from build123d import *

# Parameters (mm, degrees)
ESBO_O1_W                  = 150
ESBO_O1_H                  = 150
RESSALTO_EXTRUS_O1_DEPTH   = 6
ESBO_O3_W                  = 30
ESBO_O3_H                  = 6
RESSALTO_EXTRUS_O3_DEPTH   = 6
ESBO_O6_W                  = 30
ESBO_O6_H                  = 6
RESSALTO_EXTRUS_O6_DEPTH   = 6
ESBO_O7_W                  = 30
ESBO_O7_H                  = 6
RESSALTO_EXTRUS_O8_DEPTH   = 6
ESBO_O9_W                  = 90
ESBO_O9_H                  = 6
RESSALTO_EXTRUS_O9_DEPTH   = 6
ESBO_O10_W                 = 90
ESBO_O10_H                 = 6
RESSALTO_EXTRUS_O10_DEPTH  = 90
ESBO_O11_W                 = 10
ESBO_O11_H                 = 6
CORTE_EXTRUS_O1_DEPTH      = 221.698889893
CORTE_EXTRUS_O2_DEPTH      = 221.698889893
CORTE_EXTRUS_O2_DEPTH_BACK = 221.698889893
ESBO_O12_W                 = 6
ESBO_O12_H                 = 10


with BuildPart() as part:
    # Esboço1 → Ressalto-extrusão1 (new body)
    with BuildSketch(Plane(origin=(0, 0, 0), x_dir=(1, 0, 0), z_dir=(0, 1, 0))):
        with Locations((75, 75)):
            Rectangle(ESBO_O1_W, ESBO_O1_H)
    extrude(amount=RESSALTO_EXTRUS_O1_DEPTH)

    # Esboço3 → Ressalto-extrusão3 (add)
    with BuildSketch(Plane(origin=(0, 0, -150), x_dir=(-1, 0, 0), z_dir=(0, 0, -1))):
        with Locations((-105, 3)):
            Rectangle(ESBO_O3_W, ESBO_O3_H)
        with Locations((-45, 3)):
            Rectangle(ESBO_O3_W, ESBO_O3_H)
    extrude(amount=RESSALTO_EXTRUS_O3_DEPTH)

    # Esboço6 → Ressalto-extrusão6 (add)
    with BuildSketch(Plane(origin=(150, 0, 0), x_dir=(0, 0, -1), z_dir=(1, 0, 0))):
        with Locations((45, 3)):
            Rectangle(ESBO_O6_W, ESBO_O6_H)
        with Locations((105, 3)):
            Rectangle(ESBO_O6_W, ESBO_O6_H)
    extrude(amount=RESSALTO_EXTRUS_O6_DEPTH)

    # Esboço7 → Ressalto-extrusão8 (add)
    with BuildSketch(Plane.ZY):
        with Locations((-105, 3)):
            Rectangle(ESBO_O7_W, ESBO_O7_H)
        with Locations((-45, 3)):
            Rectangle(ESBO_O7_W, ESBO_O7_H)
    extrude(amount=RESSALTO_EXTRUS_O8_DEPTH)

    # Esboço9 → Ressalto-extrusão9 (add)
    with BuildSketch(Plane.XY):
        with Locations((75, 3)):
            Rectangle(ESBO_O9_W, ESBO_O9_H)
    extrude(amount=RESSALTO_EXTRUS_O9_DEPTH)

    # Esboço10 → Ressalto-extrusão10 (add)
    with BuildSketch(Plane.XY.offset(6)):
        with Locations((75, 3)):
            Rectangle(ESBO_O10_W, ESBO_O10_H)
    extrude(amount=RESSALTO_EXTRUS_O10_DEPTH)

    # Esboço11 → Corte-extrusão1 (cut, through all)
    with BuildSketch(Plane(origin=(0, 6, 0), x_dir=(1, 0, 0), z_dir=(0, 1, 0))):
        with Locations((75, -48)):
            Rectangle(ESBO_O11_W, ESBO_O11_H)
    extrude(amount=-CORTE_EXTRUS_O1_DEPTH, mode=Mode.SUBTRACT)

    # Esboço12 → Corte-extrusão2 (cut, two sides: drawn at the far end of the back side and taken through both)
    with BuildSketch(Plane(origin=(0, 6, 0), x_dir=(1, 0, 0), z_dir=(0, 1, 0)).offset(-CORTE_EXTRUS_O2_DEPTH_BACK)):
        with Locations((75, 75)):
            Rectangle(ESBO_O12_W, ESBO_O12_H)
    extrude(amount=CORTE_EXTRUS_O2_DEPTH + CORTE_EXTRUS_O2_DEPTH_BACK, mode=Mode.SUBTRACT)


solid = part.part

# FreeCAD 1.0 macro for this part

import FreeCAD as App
import Part
import Sketcher
from FreeCAD import Vector

doc = App.newDocument("Part")
body = doc.addObject("PartDesign::Body", "Body")

sketch1 = doc.addObject("Sketcher::SketchObject", "Sketch")
body.addObject(sketch1)
sketch1.AttachmentSupport = (doc.XZ_Plane, [""])
sketch1.MapMode = "FlatFace"
sketch1.addGeometry([
    Part.LineSegment(Vector(0, -150, 0), Vector(0, 0, 0)),
    Part.LineSegment(Vector(0, 0, 0), Vector(150, 0, 0)),
    Part.LineSegment(Vector(150, 0, 0), Vector(150, -150, 0)),
    Part.LineSegment(Vector(150, -150, 0), Vector(0, -150, 0)),
], False)
sketch1.addConstraint([
    Sketcher.Constraint("Coincident", 0, 2, 1, 1),
    Sketcher.Constraint("Coincident", 1, 2, 2, 1),
    Sketcher.Constraint("Coincident", 2, 2, 3, 1),
    Sketcher.Constraint("Coincident", 3, 2, 0, 1),
    Sketcher.Constraint("Vertical", 0),
    Sketcher.Constraint("Horizontal", 1),
    Sketcher.Constraint("Vertical", 2),
    Sketcher.Constraint("Horizontal", 3),
    Sketcher.Constraint("Coincident", 0, 2, -1, 1),
    Sketcher.Constraint("Equal", 3, 0),
    Sketcher.Constraint("DistanceX", 1, 1, 1, 2, 150.0),
])
pad1 = doc.addObject("PartDesign::Pad", "Pad")
body.addObject(pad1)
pad1.Profile = sketch1
pad1.Length = 6
pad1.Reversed = True

sketch2 = doc.addObject("Sketcher::SketchObject", "Sketch001")
body.addObject(sketch2)
sketch2.AttachmentSupport = (doc.XY_Plane, [""])
sketch2.MapMode = "FlatFace"
sketch2.AttachmentOffset = App.Placement(Vector(0, 0, -150), App.Rotation())
sketch2.addGeometry([
    Part.LineSegment(Vector(120, 6, 0), Vector(120, 0, 0)),
    Part.LineSegment(Vector(120, 0, 0), Vector(90, 0, 0)),
    Part.LineSegment(Vector(90, 0, 0), Vector(90, 6, 0)),
    Part.LineSegment(Vector(90, 6, 0), Vector(120, 6, 0)),
    Part.LineSegment(Vector(60, 6, 0), Vector(60, 0, 0)),
    Part.LineSegment(Vector(60, 0, 0), Vector(30, 0, 0)),
    Part.LineSegment(Vector(30, 0, 0), Vector(30, 6, 0)),
    Part.LineSegment(Vector(30, 6, 0), Vector(60, 6, 0)),
], False)
sketch2.addConstraint([
    Sketcher.Constraint("Coincident", 0, 2, 1, 1),
    Sketcher.Constraint("Coincident", 1, 2, 2, 1),
    Sketcher.Constraint("Coincident", 2, 2, 3, 1),
    Sketcher.Constraint("Coincident", 3, 2, 0, 1),
    Sketcher.Constraint("Coincident", 4, 2, 5, 1),
    Sketcher.Constraint("Coincident", 5, 2, 6, 1),
    Sketcher.Constraint("Coincident", 6, 2, 7, 1),
    Sketcher.Constraint("Coincident", 7, 2, 4, 1),
    Sketcher.Constraint("Vertical", 0),
    Sketcher.Constraint("Horizontal", 1),
    Sketcher.Constraint("Vertical", 2),
    Sketcher.Constraint("Horizontal", 3),
    Sketcher.Constraint("Vertical", 4),
    Sketcher.Constraint("Horizontal", 5),
    Sketcher.Constraint("Vertical", 6),
    Sketcher.Constraint("Horizontal", 7),
    Sketcher.Constraint("PointOnObject", 0, 2, -1),
    Sketcher.Constraint("PointOnObject", 4, 2, -1),
    Sketcher.Constraint("Horizontal", 3, 2, 6, 2),
    Sketcher.Constraint("Equal", 3, 5),
    Sketcher.Constraint("DistanceX", 1, 2, 1, 1, 30.0),
    Sketcher.Constraint("DistanceY", 0, 2, 0, 1, 6.0),
    Sketcher.Constraint("DistanceX", -1, 1, 0, 2, 120.0),
    Sketcher.Constraint("DistanceX", -1, 1, 4, 2, 60.0),
])
pad2 = doc.addObject("PartDesign::Pad", "Pad001")
body.addObject(pad2)
pad2.Profile = sketch2
pad2.Length = 6
pad2.Reversed = True

sketch3 = doc.addObject("Sketcher::SketchObject", "Sketch002")
body.addObject(sketch3)
sketch3.AttachmentSupport = (doc.YZ_Plane, [""])
sketch3.MapMode = "FlatFace"
sketch3.AttachmentOffset = App.Placement(Vector(0, 0, 150), App.Rotation())
sketch3.addGeometry([
    Part.LineSegment(Vector(6, -30, 0), Vector(0, -30, 0)),
    Part.LineSegment(Vector(0, -30, 0), Vector(0, -60, 0)),
    Part.LineSegment(Vector(0, -60, 0), Vector(6, -60, 0)),
    Part.LineSegment(Vector(6, -60, 0), Vector(6, -30, 0)),
    Part.LineSegment(Vector(6, -90, 0), Vector(0, -90, 0)),
    Part.LineSegment(Vector(0, -90, 0), Vector(0, -120, 0)),
    Part.LineSegment(Vector(0, -120, 0), Vector(6, -120, 0)),
    Part.LineSegment(Vector(6, -120, 0), Vector(6, -90, 0)),
], False)
sketch3.addConstraint([
    Sketcher.Constraint("Coincident", 0, 2, 1, 1),
    Sketcher.Constraint("Coincident", 1, 2, 2, 1),
    Sketcher.Constraint("Coincident", 2, 2, 3, 1),
    Sketcher.Constraint("Coincident", 3, 2, 0, 1),
    Sketcher.Constraint("Coincident", 4, 2, 5, 1),
    Sketcher.Constraint("Coincident", 5, 2, 6, 1),
    Sketcher.Constraint("Coincident", 6, 2, 7, 1),
    Sketcher.Constraint("Coincident", 7, 2, 4, 1),
    Sketcher.Constraint("Horizontal", 0),
    Sketcher.Constraint("Vertical", 1),
    Sketcher.Constraint("Horizontal", 2),
    Sketcher.Constraint("Vertical", 3),
    Sketcher.Constraint("Horizontal", 4),
    Sketcher.Constraint("Vertical", 5),
    Sketcher.Constraint("Horizontal", 6),
    Sketcher.Constraint("Vertical", 7),
    Sketcher.Constraint("PointOnObject", 0, 2, -2),
    Sketcher.Constraint("PointOnObject", 4, 2, -2),
    Sketcher.Constraint("Vertical", 3, 2, 6, 2),
    Sketcher.Constraint("Equal", 3, 5),
    Sketcher.Constraint("DistanceX", 0, 2, 0, 1, 6.0),
    Sketcher.Constraint("DistanceY", 1, 2, 1, 1, 30.0),
    Sketcher.Constraint("DistanceY", 0, 2, -1, 1, 30.0),
    Sketcher.Constraint("DistanceY", 4, 2, -1, 1, 90.0),
])
pad3 = doc.addObject("PartDesign::Pad", "Pad002")
body.addObject(pad3)
pad3.Profile = sketch3
pad3.Length = 6

sketch4 = doc.addObject("Sketcher::SketchObject", "Sketch003")
body.addObject(sketch4)
sketch4.AttachmentSupport = (doc.YZ_Plane, [""])
sketch4.MapMode = "FlatFace"
sketch4.addGeometry([
    Part.LineSegment(Vector(6, -120, 0), Vector(0, -120, 0)),
    Part.LineSegment(Vector(0, -120, 0), Vector(0, -90, 0)),
    Part.LineSegment(Vector(0, -90, 0), Vector(6, -90, 0)),
    Part.LineSegment(Vector(6, -90, 0), Vector(6, -120, 0)),
    Part.LineSegment(Vector(6, -60, 0), Vector(0, -60, 0)),
    Part.LineSegment(Vector(0, -60, 0), Vector(0, -30, 0)),
    Part.LineSegment(Vector(0, -30, 0), Vector(6, -30, 0)),
    Part.LineSegment(Vector(6, -30, 0), Vector(6, -60, 0)),
], False)
sketch4.addConstraint([
    Sketcher.Constraint("Coincident", 0, 2, 1, 1),
    Sketcher.Constraint("Coincident", 1, 2, 2, 1),
    Sketcher.Constraint("Coincident", 2, 2, 3, 1),
    Sketcher.Constraint("Coincident", 3, 2, 0, 1),
    Sketcher.Constraint("Coincident", 4, 2, 5, 1),
    Sketcher.Constraint("Coincident", 5, 2, 6, 1),
    Sketcher.Constraint("Coincident", 6, 2, 7, 1),
    Sketcher.Constraint("Coincident", 7, 2, 4, 1),
    Sketcher.Constraint("Horizontal", 0),
    Sketcher.Constraint("Vertical", 1),
    Sketcher.Constraint("Horizontal", 2),
    Sketcher.Constraint("Vertical", 3),
    Sketcher.Constraint("Horizontal", 4),
    Sketcher.Constraint("Vertical", 5),
    Sketcher.Constraint("Horizontal", 6),
    Sketcher.Constraint("Vertical", 7),
    Sketcher.Constraint("PointOnObject", 0, 2, -2),
    Sketcher.Constraint("PointOnObject", 4, 2, -2),
    Sketcher.Constraint("Vertical", 3, 2, 6, 2),
    Sketcher.Constraint("Equal", 3, 5),
    Sketcher.Constraint("DistanceX", 0, 2, 0, 1, 6.0),
    Sketcher.Constraint("DistanceY", 1, 1, 1, 2, 30.0),
    Sketcher.Constraint("DistanceY", 0, 2, -1, 1, 120.0),
    Sketcher.Constraint("DistanceY", 4, 2, -1, 1, 60.0),
])
pad4 = doc.addObject("PartDesign::Pad", "Pad003")
body.addObject(pad4)
pad4.Profile = sketch4
pad4.Length = 6
pad4.Reversed = True

sketch5 = doc.addObject("Sketcher::SketchObject", "Sketch004")
body.addObject(sketch5)
sketch5.AttachmentSupport = (doc.XY_Plane, [""])
sketch5.MapMode = "FlatFace"
sketch5.addGeometry([
    Part.LineSegment(Vector(30, 6, 0), Vector(30, 0, 0)),
    Part.LineSegment(Vector(30, 0, 0), Vector(120, 0, 0)),
    Part.LineSegment(Vector(120, 0, 0), Vector(120, 6, 0)),
    Part.LineSegment(Vector(120, 6, 0), Vector(30, 6, 0)),
], False)
sketch5.addConstraint([
    Sketcher.Constraint("Coincident", 0, 2, 1, 1),
    Sketcher.Constraint("Coincident", 1, 2, 2, 1),
    Sketcher.Constraint("Coincident", 2, 2, 3, 1),
    Sketcher.Constraint("Coincident", 3, 2, 0, 1),
    Sketcher.Constraint("Vertical", 0),
    Sketcher.Constraint("Horizontal", 1),
    Sketcher.Constraint("Vertical", 2),
    Sketcher.Constraint("Horizontal", 3),
    Sketcher.Constraint("PointOnObject", 0, 2, -1),
    Sketcher.Constraint("DistanceX", 1, 1, 1, 2, 90.0),
    Sketcher.Constraint("DistanceY", 0, 2, 0, 1, 6.0),
    Sketcher.Constraint("DistanceX", -1, 1, 0, 2, 30.0),
])
pad5 = doc.addObject("PartDesign::Pad", "Pad004")
body.addObject(pad5)
pad5.Profile = sketch5
pad5.Length = 6

sketch6 = doc.addObject("Sketcher::SketchObject", "Sketch005")
body.addObject(sketch6)
sketch6.AttachmentSupport = (doc.XY_Plane, [""])
sketch6.MapMode = "FlatFace"
sketch6.AttachmentOffset = App.Placement(Vector(0, 0, 6), App.Rotation())
sketch6.addGeometry([
    Part.LineSegment(Vector(30, 6, 0), Vector(30, 0, 0)),
    Part.LineSegment(Vector(30, 0, 0), Vector(120, 0, 0)),
    Part.LineSegment(Vector(120, 0, 0), Vector(120, 6, 0)),
    Part.LineSegment(Vector(120, 6, 0), Vector(30, 6, 0)),
], False)
sketch6.addConstraint([
    Sketcher.Constraint("Coincident", 0, 2, 1, 1),
    Sketcher.Constraint("Coincident", 1, 2, 2, 1),
    Sketcher.Constraint("Coincident", 2, 2, 3, 1),
    Sketcher.Constraint("Coincident", 3, 2, 0, 1),
    Sketcher.Constraint("Vertical", 0),
    Sketcher.Constraint("Horizontal", 1),
    Sketcher.Constraint("Vertical", 2),
    Sketcher.Constraint("Horizontal", 3),
    Sketcher.Constraint("PointOnObject", 0, 2, -1),
    Sketcher.Constraint("DistanceX", 1, 1, 1, 2, 90.0),
    Sketcher.Constraint("DistanceY", 0, 2, 0, 1, 6.0),
    Sketcher.Constraint("DistanceX", -1, 1, 0, 2, 30.0),
])
pad6 = doc.addObject("PartDesign::Pad", "Pad005")
body.addObject(pad6)
pad6.Profile = sketch6
pad6.Length = 90

sketch7 = doc.addObject("Sketcher::SketchObject", "Sketch006")
body.addObject(sketch7)
sketch7.AttachmentSupport = (doc.XZ_Plane, [""])
sketch7.MapMode = "FlatFace"
sketch7.AttachmentOffset = App.Placement(Vector(0, 0, -6), App.Rotation())
sketch7.addGeometry([
    Part.LineSegment(Vector(70, 45, 0), Vector(70, 51, 0)),
    Part.LineSegment(Vector(70, 51, 0), Vector(80, 51, 0)),
    Part.LineSegment(Vector(80, 51, 0), Vector(80, 45, 0)),
    Part.LineSegment(Vector(80, 45, 0), Vector(70, 45, 0)),
], False)
sketch7.addConstraint([
    Sketcher.Constraint("Coincident", 0, 2, 1, 1),
    Sketcher.Constraint("Coincident", 1, 2, 2, 1),
    Sketcher.Constraint("Coincident", 2, 2, 3, 1),
    Sketcher.Constraint("Coincident", 3, 2, 0, 1),
    Sketcher.Constraint("Vertical", 0),
    Sketcher.Constraint("Horizontal", 1),
    Sketcher.Constraint("Vertical", 2),
    Sketcher.Constraint("Horizontal", 3),
    Sketcher.Constraint("DistanceX", 1, 1, 1, 2, 10.0),
    Sketcher.Constraint("DistanceY", 0, 1, 0, 2, 6.0),
    Sketcher.Constraint("DistanceX", -1, 1, 0, 2, 70.0),
    Sketcher.Constraint("DistanceY", -1, 1, 0, 2, 51.0),
])
pocket1 = doc.addObject("PartDesign::Pocket", "Pocket")
body.addObject(pocket1)
pocket1.Profile = sketch7
pocket1.Type = "ThroughAll"
pocket1.Reversed = True

sketch8 = doc.addObject("Sketcher::SketchObject", "Sketch007")
body.addObject(sketch8)
sketch8.AttachmentSupport = (doc.XZ_Plane, [""])
sketch8.MapMode = "FlatFace"
sketch8.AttachmentOffset = App.Placement(Vector(0, 0, -6), App.Rotation())
sketch8.addGeometry([
    Part.LineSegment(Vector(72, -80, 0), Vector(72, -70, 0)),
    Part.LineSegment(Vector(72, -70, 0), Vector(78, -70, 0)),
    Part.LineSegment(Vector(78, -70, 0), Vector(78, -80, 0)),
    Part.LineSegment(Vector(78, -80, 0), Vector(72, -80, 0)),
], False)
sketch8.addConstraint([
    Sketcher.Constraint("Coincident", 0, 2, 1, 1),
    Sketcher.Constraint("Coincident", 1, 2, 2, 1),
    Sketcher.Constraint("Coincident", 2, 2, 3, 1),
    Sketcher.Constraint("Coincident", 3, 2, 0, 1),
    Sketcher.Constraint("Vertical", 0),
    Sketcher.Constraint("Horizontal", 1),
    Sketcher.Constraint("Vertical", 2),
    Sketcher.Constraint("Horizontal", 3),
    Sketcher.Constraint("DistanceX", 1, 1, 1, 2, 6.0),
    Sketcher.Constraint("DistanceY", 0, 1, 0, 2, 10.0),
    Sketcher.Constraint("DistanceX", -1, 1, 0, 2, 72.0),
    Sketcher.Constraint("DistanceY", 0, 2, -1, 1, 70.0),
])
pocket2 = doc.addObject("PartDesign::Pocket", "Pocket001")
body.addObject(pocket2)
pocket2.Profile = sketch8
pocket2.Type = "ThroughAll"
pocket2.Midplane = True

doc.recompute()
